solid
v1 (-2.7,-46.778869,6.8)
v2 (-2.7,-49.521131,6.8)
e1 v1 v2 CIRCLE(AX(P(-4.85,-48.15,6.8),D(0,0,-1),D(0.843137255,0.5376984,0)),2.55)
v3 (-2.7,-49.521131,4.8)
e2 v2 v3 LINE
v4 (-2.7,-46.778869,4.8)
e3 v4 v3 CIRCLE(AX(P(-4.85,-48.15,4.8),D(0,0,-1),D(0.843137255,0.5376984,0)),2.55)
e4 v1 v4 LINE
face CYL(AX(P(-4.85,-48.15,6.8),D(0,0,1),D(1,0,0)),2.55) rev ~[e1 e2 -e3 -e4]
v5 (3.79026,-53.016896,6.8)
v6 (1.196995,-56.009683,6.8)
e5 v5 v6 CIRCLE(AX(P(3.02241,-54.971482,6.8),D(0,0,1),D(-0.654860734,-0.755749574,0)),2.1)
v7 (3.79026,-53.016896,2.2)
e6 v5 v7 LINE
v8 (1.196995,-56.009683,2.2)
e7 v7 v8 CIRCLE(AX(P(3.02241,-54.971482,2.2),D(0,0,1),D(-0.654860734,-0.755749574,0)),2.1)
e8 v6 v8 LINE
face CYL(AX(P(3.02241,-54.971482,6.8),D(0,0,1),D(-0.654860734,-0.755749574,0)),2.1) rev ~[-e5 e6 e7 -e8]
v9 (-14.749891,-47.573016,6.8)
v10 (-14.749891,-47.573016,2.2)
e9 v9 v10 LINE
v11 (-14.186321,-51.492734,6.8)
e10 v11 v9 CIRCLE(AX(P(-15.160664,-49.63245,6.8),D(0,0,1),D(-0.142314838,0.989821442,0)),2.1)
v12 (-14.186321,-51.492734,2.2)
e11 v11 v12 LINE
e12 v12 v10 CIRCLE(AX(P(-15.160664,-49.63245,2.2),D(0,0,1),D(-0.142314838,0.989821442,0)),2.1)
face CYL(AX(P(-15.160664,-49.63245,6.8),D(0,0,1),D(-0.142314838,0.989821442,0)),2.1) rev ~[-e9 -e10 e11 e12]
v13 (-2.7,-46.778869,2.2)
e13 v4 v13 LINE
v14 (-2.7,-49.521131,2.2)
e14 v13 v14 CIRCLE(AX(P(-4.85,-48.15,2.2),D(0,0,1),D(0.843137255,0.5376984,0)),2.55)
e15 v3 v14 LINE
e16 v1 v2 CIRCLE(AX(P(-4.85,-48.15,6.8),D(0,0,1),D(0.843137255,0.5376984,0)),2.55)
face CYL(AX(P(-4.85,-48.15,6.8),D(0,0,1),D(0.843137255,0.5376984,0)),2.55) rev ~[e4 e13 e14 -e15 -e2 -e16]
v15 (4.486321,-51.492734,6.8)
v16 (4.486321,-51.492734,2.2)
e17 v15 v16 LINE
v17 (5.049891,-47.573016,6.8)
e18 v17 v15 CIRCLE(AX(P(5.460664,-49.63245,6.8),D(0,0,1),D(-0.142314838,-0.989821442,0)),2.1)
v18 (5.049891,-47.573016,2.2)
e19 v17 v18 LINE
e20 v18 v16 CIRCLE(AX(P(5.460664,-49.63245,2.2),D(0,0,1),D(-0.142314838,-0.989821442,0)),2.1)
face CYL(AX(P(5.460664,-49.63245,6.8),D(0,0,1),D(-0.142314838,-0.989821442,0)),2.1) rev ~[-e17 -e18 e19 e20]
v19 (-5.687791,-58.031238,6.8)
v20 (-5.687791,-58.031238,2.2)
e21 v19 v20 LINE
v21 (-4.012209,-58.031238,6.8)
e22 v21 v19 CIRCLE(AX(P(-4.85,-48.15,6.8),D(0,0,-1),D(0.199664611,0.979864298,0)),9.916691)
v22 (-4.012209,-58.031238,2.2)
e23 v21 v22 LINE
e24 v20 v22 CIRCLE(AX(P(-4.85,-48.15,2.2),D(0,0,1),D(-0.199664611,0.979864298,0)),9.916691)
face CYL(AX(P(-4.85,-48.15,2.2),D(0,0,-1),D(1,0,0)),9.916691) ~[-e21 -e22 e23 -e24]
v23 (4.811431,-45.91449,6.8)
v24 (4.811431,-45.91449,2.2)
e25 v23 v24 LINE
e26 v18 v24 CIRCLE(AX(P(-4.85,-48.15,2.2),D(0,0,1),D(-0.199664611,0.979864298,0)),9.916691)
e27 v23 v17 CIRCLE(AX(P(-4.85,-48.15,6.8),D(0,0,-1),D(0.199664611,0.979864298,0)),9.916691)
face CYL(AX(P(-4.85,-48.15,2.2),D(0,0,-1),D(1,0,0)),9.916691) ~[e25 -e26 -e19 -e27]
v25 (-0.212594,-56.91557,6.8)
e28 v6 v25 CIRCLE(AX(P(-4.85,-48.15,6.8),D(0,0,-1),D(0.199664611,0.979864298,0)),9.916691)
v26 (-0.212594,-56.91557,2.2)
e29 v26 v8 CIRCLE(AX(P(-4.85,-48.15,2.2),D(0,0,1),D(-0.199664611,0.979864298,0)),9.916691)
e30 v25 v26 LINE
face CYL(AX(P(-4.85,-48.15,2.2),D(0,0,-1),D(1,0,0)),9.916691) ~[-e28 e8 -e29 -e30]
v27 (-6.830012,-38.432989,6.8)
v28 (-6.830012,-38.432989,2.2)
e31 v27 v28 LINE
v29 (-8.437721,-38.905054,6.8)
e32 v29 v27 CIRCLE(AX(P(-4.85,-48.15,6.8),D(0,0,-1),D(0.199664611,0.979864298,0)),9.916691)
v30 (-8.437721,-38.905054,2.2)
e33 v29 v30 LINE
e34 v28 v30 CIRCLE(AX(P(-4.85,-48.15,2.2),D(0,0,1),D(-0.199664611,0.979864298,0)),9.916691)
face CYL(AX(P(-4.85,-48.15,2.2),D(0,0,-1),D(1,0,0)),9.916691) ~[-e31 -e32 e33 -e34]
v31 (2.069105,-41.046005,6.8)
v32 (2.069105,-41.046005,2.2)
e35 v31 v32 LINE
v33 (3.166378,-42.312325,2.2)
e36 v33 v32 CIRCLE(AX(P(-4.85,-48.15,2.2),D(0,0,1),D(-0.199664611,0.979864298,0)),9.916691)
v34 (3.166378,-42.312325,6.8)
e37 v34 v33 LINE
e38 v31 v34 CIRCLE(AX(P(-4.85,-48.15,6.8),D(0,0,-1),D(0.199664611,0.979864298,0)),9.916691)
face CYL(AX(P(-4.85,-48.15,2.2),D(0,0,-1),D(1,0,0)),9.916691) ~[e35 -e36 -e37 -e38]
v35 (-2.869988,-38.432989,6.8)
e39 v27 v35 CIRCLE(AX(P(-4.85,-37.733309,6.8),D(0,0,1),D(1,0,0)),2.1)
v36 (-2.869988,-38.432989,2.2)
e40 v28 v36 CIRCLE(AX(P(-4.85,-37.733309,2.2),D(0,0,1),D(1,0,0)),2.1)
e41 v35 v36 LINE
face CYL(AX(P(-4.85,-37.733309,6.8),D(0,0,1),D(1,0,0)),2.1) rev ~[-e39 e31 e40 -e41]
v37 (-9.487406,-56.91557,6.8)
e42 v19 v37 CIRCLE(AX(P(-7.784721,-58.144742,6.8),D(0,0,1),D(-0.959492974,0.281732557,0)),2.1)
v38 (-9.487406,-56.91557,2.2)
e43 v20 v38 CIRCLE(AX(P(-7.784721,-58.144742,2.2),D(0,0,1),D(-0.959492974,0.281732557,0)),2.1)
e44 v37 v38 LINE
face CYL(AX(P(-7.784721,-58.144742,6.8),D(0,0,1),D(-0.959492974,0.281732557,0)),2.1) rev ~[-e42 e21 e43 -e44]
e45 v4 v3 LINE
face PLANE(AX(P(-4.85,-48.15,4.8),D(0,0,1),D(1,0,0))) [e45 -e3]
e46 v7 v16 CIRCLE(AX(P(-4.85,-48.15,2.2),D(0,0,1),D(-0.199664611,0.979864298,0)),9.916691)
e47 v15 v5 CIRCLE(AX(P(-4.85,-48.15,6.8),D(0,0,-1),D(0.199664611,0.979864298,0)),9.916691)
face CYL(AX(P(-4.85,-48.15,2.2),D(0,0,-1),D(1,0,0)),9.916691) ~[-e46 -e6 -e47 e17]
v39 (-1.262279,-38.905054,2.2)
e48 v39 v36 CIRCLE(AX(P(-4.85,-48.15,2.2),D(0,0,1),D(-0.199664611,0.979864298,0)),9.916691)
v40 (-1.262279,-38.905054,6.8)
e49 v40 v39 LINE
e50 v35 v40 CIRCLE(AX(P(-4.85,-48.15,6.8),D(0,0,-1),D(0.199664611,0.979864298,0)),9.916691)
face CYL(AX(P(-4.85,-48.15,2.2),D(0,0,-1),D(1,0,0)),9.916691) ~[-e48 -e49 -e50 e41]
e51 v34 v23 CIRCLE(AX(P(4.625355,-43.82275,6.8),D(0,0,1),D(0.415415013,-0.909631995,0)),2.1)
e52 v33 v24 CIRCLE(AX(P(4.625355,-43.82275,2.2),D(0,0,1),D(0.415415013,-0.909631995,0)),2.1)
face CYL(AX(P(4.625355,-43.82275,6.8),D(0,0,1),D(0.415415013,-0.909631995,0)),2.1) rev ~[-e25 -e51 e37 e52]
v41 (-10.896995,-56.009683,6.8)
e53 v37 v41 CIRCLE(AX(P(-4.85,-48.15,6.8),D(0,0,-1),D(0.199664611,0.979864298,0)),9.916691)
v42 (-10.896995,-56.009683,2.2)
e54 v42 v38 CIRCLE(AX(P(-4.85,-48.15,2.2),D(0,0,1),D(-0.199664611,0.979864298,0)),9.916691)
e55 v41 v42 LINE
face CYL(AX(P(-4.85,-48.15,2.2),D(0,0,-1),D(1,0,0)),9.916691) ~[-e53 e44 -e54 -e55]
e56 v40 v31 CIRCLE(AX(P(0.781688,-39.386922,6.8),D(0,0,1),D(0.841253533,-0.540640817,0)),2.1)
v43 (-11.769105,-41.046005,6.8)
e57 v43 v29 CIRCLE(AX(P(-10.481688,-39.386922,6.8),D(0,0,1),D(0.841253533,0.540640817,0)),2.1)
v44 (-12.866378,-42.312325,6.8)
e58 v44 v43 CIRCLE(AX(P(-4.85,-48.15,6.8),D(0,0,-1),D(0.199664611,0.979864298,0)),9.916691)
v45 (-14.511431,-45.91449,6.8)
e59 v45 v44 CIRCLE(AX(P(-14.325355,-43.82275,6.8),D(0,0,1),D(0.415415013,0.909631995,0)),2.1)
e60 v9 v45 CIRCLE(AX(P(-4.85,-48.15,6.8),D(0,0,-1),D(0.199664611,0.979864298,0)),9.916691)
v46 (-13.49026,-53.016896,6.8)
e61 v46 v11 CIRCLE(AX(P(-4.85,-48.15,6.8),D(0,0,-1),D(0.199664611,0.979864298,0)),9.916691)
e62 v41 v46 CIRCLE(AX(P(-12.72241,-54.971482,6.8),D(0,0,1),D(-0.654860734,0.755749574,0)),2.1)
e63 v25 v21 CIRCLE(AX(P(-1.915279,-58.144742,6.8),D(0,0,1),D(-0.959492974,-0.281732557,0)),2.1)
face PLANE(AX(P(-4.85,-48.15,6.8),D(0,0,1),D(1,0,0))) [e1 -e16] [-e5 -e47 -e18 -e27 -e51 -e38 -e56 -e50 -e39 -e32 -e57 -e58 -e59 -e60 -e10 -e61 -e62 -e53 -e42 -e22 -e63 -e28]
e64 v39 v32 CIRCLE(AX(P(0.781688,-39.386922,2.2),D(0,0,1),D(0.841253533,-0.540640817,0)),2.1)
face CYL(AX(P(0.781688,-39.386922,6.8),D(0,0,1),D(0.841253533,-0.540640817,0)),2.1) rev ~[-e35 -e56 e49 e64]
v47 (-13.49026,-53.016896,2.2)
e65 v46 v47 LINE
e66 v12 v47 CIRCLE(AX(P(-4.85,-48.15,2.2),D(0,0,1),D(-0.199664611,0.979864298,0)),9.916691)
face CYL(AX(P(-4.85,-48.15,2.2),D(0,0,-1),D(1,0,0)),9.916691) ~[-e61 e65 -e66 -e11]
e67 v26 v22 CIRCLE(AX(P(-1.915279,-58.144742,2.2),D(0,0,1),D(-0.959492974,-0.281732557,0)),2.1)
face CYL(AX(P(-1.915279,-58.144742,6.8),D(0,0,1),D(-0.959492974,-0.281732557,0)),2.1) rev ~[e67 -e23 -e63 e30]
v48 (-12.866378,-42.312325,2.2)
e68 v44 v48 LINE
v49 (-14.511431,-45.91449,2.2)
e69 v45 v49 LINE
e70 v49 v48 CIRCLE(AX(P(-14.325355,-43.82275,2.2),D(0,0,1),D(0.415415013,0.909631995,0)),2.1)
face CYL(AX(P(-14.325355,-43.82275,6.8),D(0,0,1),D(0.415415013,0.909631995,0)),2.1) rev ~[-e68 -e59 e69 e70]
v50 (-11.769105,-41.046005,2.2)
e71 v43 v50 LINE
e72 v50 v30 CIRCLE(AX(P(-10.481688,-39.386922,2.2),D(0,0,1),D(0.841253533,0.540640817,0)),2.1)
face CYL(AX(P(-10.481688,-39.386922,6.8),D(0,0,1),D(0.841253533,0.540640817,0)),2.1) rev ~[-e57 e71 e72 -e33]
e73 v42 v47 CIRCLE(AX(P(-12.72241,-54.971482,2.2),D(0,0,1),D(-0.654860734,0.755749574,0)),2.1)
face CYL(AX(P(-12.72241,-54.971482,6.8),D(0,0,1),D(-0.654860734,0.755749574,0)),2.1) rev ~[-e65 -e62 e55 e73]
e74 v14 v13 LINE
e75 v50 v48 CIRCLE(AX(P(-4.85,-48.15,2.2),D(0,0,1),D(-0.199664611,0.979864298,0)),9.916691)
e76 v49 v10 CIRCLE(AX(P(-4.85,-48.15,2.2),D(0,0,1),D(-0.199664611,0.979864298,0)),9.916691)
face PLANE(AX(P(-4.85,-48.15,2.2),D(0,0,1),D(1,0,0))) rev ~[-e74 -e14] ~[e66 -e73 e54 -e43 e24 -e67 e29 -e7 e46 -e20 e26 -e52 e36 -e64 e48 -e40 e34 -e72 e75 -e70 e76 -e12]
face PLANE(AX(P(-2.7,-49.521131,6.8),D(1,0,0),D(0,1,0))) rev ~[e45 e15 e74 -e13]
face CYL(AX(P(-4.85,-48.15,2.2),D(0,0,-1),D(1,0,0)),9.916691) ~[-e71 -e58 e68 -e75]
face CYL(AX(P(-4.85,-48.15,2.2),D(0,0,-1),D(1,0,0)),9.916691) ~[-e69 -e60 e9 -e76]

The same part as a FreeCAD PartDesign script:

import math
import FreeCAD as App
import Part
import Sketcher
from FreeCAD import Vector
Q = App.Units.Quantity

doc = App.newDocument("Part")
body = doc.addObject("PartDesign::Body", "Body")

sketch1 = body.newObject("Sketcher::SketchObject", "Sketch")
sketch1.AttachmentSupport = (doc.getObject("XY_Plane"), [""])
sketch1.MapMode = "FlatFace"
sketch1.addGeometry(Part.Circle(Vector(0, 0, 0), Vector(0, 0, 1), 10), False)
sketch1.addConstraint([
    Sketcher.Constraint("Coincident", 0, 3, -1, 1),
    Sketcher.Constraint("Diameter", 0, Q("19.833382 mm")),
])
pad1 = body.newObject("PartDesign::Pad", "Pad")
pad1.Profile = sketch1
pad1.Length = 4.6

sketch2 = body.newObject("Sketcher::SketchObject", "Sketch001")
sketch2.AttachmentSupport = (doc.getObject("XY_Plane"), [""])
sketch2.MapMode = "FlatFace"
sketch2.AttachmentOffset = App.Placement(Vector(0, 0, 4.6), App.Rotation())
sketch2.addGeometry(Part.Circle(Vector(0, 10.4, 0), Vector(0, 0, 1), 2.1), False)
sketch2.addConstraint([
    Sketcher.Constraint("PointOnObject", 0, 3, -2),
    Sketcher.Constraint("Diameter", 0, Q("4.2 mm")),
    Sketcher.Constraint("DistanceY", -1, 1, 0, 3, Q("10.416691 mm")),
])
pocket1 = body.newObject("PartDesign::Pocket", "Pocket")
pocket1.Profile = sketch2
pocket1.Type = "ThroughAll"
doc.recompute()

polarpattern = body.newObject("PartDesign::PolarPattern", "PolarPattern")
polarpattern.Originals = [pocket1]
polarpattern.Axis = (doc.getObject("Z_Axis"), [""])
polarpattern.Angle = 360
polarpattern.Occurrences = 11
body.Tip = polarpattern

sketch3 = body.newObject("Sketcher::SketchObject", "Sketch002")
sketch3.AttachmentSupport = (doc.getObject("XY_Plane"), [""])
sketch3.MapMode = "FlatFace"
sketch3.AttachmentOffset = App.Placement(Vector(0, 0, 4.6), App.Rotation())
sketch3.addGeometry([
    Part.ArcOfCircle(Part.Circle(Vector(0, 0, 0), Vector(0, 0, 1), 2.5), math.radians(33), math.radians(327)),
    Part.LineSegment(Vector(2.1, -1.4, 0), Vector(2.1, 1.4, 0)),
], False)
sketch3.addConstraint([
    Sketcher.Constraint("Coincident", 0, 1, 1, 2),
    Sketcher.Constraint("Coincident", 1, 1, 0, 2),
    Sketcher.Constraint("Vertical", 1),
    Sketcher.Constraint("Coincident", 0, 3, -1, 1),
    Sketcher.Constraint("Radius", 0, Q("2.55 mm")),
    Sketcher.Constraint("DistanceX", -1, 1, 0, 1, Q("2.15 mm")),
])
pocket2 = body.newObject("PartDesign::Pocket", "Pocket001")
pocket2.Profile = sketch3
pocket2.Type = "ThroughAll"

sketch4 = body.newObject("Sketcher::SketchObject", "Sketch003")
sketch4.AttachmentSupport = (doc.getObject("XY_Plane"), [""])
sketch4.MapMode = "FlatFace"
sketch4.AttachmentOffset = App.Placement(Vector(0, 0, 4.6), App.Rotation())
sketch4.addGeometry(Part.Circle(Vector(0, 0, 0), Vector(0, 0, 1), 2.5), False)
sketch4.addConstraint([
    Sketcher.Constraint("Coincident", 0, 3, -1, 1),
    Sketcher.Constraint("Diameter", 0, Q("5.1 mm")),
])
pocket3 = body.newObject("PartDesign::Pocket", "Pocket002")
pocket3.Profile = sketch4
pocket3.Length = 2
body2 = doc.addObject("PartDesign::Body", "Body001")
doc.recompute()

body.Placement = App.Placement(Vector(-4.85, -48.15, 2.2), App.Rotation(Vector(0, 0, 1), 0))
boolean = body2.newObject("PartDesign::Boolean", "Boolean")
boolean.Type = "Fuse"
boolean.addObjects([body])

doc.recompute()
